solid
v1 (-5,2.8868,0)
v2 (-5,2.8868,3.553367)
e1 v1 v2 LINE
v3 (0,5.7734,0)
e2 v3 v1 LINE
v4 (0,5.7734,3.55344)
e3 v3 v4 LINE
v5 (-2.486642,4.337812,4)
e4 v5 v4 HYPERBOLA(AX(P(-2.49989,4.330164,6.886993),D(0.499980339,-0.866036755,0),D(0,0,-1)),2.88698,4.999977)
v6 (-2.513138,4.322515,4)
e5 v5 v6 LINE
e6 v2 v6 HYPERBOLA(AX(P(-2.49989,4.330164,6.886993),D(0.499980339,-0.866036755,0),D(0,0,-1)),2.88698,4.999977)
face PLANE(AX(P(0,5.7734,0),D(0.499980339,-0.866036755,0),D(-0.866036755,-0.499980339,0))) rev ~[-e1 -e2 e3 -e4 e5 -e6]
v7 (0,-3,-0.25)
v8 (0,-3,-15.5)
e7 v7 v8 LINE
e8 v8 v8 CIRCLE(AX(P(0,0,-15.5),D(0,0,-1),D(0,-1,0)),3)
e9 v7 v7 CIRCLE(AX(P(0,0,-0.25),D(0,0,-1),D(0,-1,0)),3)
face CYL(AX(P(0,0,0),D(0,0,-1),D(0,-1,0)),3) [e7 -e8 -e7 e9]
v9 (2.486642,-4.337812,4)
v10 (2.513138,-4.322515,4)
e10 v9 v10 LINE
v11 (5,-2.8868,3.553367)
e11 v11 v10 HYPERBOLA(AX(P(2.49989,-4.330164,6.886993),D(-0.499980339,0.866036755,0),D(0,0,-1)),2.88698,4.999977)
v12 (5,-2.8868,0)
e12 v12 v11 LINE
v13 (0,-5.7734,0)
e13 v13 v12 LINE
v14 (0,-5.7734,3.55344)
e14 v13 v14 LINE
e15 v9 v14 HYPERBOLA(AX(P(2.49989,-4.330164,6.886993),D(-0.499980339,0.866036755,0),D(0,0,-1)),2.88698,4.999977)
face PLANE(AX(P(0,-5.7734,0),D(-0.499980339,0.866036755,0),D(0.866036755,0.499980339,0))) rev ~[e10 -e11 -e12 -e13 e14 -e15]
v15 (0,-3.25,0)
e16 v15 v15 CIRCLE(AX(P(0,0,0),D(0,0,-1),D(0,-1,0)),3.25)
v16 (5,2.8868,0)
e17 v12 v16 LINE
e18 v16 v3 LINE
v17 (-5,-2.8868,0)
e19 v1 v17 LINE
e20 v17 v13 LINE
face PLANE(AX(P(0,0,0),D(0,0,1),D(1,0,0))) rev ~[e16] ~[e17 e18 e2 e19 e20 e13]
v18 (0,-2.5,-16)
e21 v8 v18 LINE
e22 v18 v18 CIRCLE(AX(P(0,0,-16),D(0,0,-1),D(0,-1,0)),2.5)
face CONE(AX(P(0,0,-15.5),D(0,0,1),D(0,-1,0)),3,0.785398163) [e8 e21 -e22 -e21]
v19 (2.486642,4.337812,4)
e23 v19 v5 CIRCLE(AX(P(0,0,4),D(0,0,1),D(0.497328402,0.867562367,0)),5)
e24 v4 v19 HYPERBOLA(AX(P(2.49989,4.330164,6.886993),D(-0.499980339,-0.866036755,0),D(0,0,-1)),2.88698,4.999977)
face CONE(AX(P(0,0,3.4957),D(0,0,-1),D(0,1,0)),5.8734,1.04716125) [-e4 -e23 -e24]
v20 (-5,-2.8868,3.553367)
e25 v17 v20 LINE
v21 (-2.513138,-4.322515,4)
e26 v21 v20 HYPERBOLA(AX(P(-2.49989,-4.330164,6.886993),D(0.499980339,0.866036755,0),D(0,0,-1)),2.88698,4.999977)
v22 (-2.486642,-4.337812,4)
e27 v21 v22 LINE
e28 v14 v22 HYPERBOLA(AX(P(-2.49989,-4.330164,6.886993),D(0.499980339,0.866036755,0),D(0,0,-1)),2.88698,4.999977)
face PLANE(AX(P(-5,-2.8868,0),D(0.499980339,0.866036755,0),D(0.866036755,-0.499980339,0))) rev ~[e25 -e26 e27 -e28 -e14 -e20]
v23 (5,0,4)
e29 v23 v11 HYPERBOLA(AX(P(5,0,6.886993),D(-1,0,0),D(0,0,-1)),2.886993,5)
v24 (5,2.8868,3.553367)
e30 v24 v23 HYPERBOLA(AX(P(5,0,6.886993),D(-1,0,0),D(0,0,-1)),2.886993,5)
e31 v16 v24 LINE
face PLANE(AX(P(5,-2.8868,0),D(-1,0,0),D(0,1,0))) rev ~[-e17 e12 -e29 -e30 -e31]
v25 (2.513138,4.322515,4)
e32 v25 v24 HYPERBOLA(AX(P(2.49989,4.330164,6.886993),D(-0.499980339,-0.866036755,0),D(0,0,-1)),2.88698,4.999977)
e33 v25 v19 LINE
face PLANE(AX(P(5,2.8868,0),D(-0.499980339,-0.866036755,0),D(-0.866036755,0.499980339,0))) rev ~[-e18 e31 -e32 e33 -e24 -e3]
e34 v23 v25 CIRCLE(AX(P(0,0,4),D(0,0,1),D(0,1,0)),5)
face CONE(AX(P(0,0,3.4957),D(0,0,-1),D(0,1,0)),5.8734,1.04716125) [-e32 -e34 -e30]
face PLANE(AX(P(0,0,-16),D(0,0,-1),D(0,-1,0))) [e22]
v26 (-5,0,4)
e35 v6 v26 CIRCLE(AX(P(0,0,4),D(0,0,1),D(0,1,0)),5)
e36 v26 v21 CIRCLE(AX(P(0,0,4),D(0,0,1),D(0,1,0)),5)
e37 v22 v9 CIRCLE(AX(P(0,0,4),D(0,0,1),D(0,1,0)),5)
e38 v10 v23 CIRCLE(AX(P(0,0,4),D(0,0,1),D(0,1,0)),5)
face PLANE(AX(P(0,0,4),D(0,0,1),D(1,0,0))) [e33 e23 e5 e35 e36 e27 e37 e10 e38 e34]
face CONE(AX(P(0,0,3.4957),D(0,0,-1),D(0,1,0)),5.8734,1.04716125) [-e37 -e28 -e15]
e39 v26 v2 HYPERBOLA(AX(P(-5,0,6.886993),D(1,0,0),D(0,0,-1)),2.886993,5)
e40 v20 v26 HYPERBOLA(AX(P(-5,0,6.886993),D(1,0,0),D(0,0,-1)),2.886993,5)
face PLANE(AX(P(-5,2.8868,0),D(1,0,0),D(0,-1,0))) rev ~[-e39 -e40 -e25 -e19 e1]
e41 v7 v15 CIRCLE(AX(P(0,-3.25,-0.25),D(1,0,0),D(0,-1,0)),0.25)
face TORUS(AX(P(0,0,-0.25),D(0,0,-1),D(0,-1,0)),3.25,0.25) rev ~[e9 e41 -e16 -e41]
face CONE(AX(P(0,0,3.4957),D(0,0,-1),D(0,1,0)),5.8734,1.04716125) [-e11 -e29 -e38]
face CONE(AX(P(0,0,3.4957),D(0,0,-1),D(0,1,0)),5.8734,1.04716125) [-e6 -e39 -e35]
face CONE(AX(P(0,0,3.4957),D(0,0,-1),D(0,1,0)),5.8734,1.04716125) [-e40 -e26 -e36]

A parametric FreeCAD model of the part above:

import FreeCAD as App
import Part
import Sketcher
from FreeCAD import Vector


def edges_at(feature, points):
    """Names of the edges that pass closest to the given points."""
    edges = feature.Shape.Edges
    near = lambda p: min(range(len(edges)), key=lambda i: edges[i].distToShape(Part.Vertex(*p))[0])
    return sorted({f"Edge{near(p) + 1}" for p in points})


def add_polygon(sketch, points):
    """Adds a closed chain of lines whose ends are joined by coincident constraints."""
    first, n = sketch.GeometryCount, len(points)
    for a, b in zip(points, points[1:] + points[:1]):
        sketch.addGeometry(Part.LineSegment(App.Vector(*a, 0), App.Vector(*b, 0)), False)
    for i in range(n):
        sketch.addConstraint(Sketcher.Constraint("Coincident", first + i, 2, first + (i + 1) % n, 1))

doc = App.newDocument("Part")
body = doc.addObject("PartDesign::Body", "Body")

# Sketch on XY plane
sketch1 = body.newObject("Sketcher::SketchObject", "Sketch")
sketch1.AttachmentSupport = (doc.getObject("XY_Plane"), [""])
sketch1.MapMode = "FlatFace"
add_polygon(sketch1, [(0, 6), (-5, 3), (-5, -3), (0, -6), (5, -3), (5, 3)])  # lines 0-5
sketch1.addConstraint([
    Sketcher.Constraint("Vertical", 1),
    Sketcher.Constraint("Vertical", 4),
    Sketcher.Constraint("Symmetric", 0, 2, 3, 2, -1, 1),
    Sketcher.Constraint("Symmetric", 2, 2, 5, 2, -1, 1),
    Sketcher.Constraint("PointOnObject", 2, 2, -2),
    Sketcher.Constraint("Parallel", 2, 5),
    Sketcher.Constraint("Horizontal", 1, 2, 3, 2),
    Sketcher.Constraint("DistanceX", 1, 2, 3, 2, 10.0),
    Sketcher.Constraint("DistanceY", 1, 2, 1, 1, 5.7736),
    Sketcher.Constraint("Distance", 0, 5.7734),
])
pad1 = body.newObject("PartDesign::Pad", "Pad")
pad1.Profile = sketch1
pad1.Length = 4

# Sketch on YZ plane
sketch2 = body.newObject("Sketcher::SketchObject", "Sketch001")
sketch2.AttachmentSupport = (doc.getObject("YZ_Plane"), [""])
sketch2.MapMode = "FlatFace"
add_polygon(sketch2, [(5, 4), (5.9, 3.5), (5.9, 4)])  # lines 0-2
sketch2.addConstraint([
    Sketcher.Constraint("Vertical", 1),
    Sketcher.Constraint("Horizontal", 2),
    Sketcher.Constraint("DistanceX", -1, 1, 2, 2, 5.0),
    Sketcher.Constraint("DistanceY", -1, 1, 1, 2, 4.0),
    Sketcher.Constraint("DistanceX", 2, 2, 2, 1, 0.8734),
    Sketcher.Constraint("DistanceY", 1, 1, 1, 2, 0.5043),
])
groove = body.newObject("PartDesign::Groove", "Groove")
groove.Profile = sketch2
groove.ReferenceAxis = (sketch2, ["V_Axis"])
groove.Angle = 360

# Sketch on YZ plane
sketch3 = body.newObject("Sketcher::SketchObject", "Sketch002")
sketch3.AttachmentSupport = (doc.getObject("YZ_Plane"), [""])
sketch3.MapMode = "FlatFace"
add_polygon(sketch3, [(-3, -16), (0, -16), (0, 0), (-3, 0)])  # lines 0-3
sketch3.addConstraint([
    Sketcher.Constraint("Horizontal", 0),
    Sketcher.Constraint("Vertical", 1),
    Sketcher.Constraint("Horizontal", 2),
    Sketcher.Constraint("Vertical", 3),
    Sketcher.Constraint("Coincident", 1, 2, -1, 1),
    Sketcher.Constraint("DistanceX", 0, 1, 0, 2, 3.0),
    Sketcher.Constraint("DistanceY", 1, 1, 1, 2, 16.0),
])
revolution = body.newObject("PartDesign::Revolution", "Revolution")
revolution.Profile = sketch3
revolution.ReferenceAxis = (sketch3, ["V_Axis"])
revolution.Angle = 360
doc.recompute()

chamfer = body.newObject("PartDesign::Chamfer", "Chamfer")
chamfer.Base = (revolution, edges_at(revolution, [(0, 3, -16)]))
chamfer.Size = 0.5
doc.recompute()

fillet = body.newObject("PartDesign::Fillet", "Fillet")
fillet.Base = (chamfer, edges_at(chamfer, [(0, 3, 0)]))
fillet.Radius = 0.25

doc.recompute()
